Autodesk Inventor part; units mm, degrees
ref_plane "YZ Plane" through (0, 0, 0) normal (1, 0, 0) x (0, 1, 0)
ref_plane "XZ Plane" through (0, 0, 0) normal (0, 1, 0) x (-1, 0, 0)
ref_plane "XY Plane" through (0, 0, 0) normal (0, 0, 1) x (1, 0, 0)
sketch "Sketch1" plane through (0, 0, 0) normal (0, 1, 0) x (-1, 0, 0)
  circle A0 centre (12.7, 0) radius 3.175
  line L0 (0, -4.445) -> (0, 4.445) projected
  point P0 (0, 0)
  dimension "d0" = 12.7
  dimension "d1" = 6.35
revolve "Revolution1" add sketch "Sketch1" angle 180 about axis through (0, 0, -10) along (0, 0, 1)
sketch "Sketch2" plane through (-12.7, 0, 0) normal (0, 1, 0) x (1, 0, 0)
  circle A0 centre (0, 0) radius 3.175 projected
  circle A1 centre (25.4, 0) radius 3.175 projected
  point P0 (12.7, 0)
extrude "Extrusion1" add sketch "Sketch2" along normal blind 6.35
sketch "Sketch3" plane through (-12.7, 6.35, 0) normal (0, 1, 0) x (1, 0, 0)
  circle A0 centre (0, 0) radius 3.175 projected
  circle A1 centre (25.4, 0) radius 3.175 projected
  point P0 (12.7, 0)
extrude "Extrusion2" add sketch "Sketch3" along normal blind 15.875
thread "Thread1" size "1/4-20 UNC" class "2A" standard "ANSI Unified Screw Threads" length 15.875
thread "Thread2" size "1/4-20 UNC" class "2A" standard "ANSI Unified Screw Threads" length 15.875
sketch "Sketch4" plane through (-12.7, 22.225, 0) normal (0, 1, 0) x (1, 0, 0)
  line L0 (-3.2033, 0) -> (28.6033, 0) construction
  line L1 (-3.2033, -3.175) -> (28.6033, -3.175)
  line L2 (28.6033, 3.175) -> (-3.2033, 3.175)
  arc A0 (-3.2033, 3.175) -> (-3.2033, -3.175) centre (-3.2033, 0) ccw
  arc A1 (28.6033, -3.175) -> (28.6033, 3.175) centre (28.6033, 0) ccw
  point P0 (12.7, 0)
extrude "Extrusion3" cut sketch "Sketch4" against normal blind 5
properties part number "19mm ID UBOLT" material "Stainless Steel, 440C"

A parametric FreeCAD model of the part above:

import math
import FreeCAD as App
import Part
import Sketcher

V = App.Vector
Q = App.Units.Quantity

doc = App.newDocument("Part")
body = doc.addObject("PartDesign::Body", "Body")

# Sketch on XZ plane
sketch1 = body.newObject("Sketcher::SketchObject", "Sketch")
sketch1.AttachmentSupport = (doc.getObject("XZ_Plane"), [""])
sketch1.MapMode = "FlatFace"
sketch1.addGeometry(Part.Circle(V(-12.7, 0, 0), V(0, 0, 1), 3.175), False)
sketch1.addConstraint(Sketcher.Constraint("PointOnObject", 0, 3, -1))
sketch1.addConstraint(Sketcher.Constraint("Diameter", 0, Q("0.25 in")))
sketch1.addConstraint(Sketcher.Constraint("DistanceX", 0, 3, -1, 1, Q("0.5 in")))
revolution = body.newObject("PartDesign::Revolution", "Revolution")
revolution.Profile = sketch1
revolution.ReferenceAxis = (sketch1, ["V_Axis"])
revolution.Angle = 180

# Sketch on XZ plane
sketch2 = body.newObject("Sketcher::SketchObject", "Sketch001")
sketch2.AttachmentSupport = (doc.getObject("XZ_Plane"), [""])
sketch2.MapMode = "FlatFace"
sketch2.addGeometry(Part.Circle(V(-12.7, 0, 0), V(0, 0, 1), 3.175), False)
sketch2.addGeometry(Part.Circle(V(12.7, 0, 0), V(0, 0, 1), 3.175), False)
sketch2.addConstraint(Sketcher.Constraint("Equal", 0, 1))
sketch2.addConstraint(Sketcher.Constraint("Symmetric", 0, 3, 1, 3, -1, 1))
sketch2.addConstraint(Sketcher.Constraint("PointOnObject", 0, 3, -1))
sketch2.addConstraint(Sketcher.Constraint("Diameter", 0, Q("0.25 in")))
sketch2.addConstraint(Sketcher.Constraint("DistanceX", 0, 3, 1, 3, Q("1 in")))
pad1 = body.newObject("PartDesign::Pad", "Pad")
pad1.Profile = sketch2
pad1.Length = Q("0.25 in")
pad1.Reversed = True

# Sketch on XZ plane
sketch3 = body.newObject("Sketcher::SketchObject", "Sketch002")
sketch3.AttachmentSupport = (doc.getObject("XZ_Plane"), [""])
sketch3.MapMode = "FlatFace"
sketch3.AttachmentOffset = App.Placement(V(0, 0, -0.25 * 25.4), App.Rotation())
sketch3.addGeometry(Part.Circle(V(-12.7, 0, 0), V(0, 0, 1), 3.175), False)
sketch3.addGeometry(Part.Circle(V(12.7, 0, 0), V(0, 0, 1), 3.175), False)
sketch3.addConstraint(Sketcher.Constraint("Equal", 0, 1))
sketch3.addConstraint(Sketcher.Constraint("Symmetric", 0, 3, 1, 3, -1, 1))
sketch3.addConstraint(Sketcher.Constraint("PointOnObject", 0, 3, -1))
sketch3.addConstraint(Sketcher.Constraint("Diameter", 0, Q("0.25 in")))
sketch3.addConstraint(Sketcher.Constraint("DistanceX", 0, 3, 1, 3, Q("1 in")))
pad2 = body.newObject("PartDesign::Pad", "Pad001")
pad2.Profile = sketch3
pad2.Length = Q("0.625 in")
pad2.Reversed = True

# Sketch on XZ plane
sketch4 = body.newObject("Sketcher::SketchObject", "Sketch003")
sketch4.AttachmentSupport = (doc.getObject("XZ_Plane"), [""])
sketch4.MapMode = "FlatFace"
sketch4.AttachmentOffset = App.Placement(V(0, 0, -0.875 * 25.4), App.Rotation())
sketch4.addGeometry(Part.ArcOfCircle(Part.Circle(V(-15.9033, 0, 0), V(0, 0, 1), 3.175), math.radians(90), math.radians(270)), False)
sketch4.addGeometry(Part.LineSegment(V(-15.9033, 3.175, 0), V(15.9033, 3.175, 0)), False)
sketch4.addGeometry(Part.ArcOfCircle(Part.Circle(V(15.9033, 0, 0), V(0, 0, 1), 3.175), math.radians(-90), math.radians(90)), False)
sketch4.addGeometry(Part.LineSegment(V(15.9033, -3.175, 0), V(-15.9033, -3.175, 0)), False)
sketch4.addConstraint(Sketcher.Constraint("Tangent", 0, 1, 1, 1))
sketch4.addConstraint(Sketcher.Constraint("Tangent", 1, 2, 2, 2))
sketch4.addConstraint(Sketcher.Constraint("Tangent", 2, 1, 3, 1))
sketch4.addConstraint(Sketcher.Constraint("Tangent", 3, 2, 0, 2))
sketch4.addConstraint(Sketcher.Constraint("Horizontal", 1))
sketch4.addConstraint(Sketcher.Constraint("Horizontal", 3))
sketch4.addConstraint(Sketcher.Constraint("Symmetric", 0, 3, 2, 3, -1, 1))
sketch4.addConstraint(Sketcher.Constraint("Radius", 0, Q("0.125 in")))
sketch4.addConstraint(Sketcher.Constraint("DistanceX", 1, 1, 1, 2, 31.8066))
pocket1 = body.newObject("PartDesign::Pocket", "Pocket")
pocket1.Profile = sketch4
pocket1.Length = 5
pocket1.Reversed = True

doc.recompute()
